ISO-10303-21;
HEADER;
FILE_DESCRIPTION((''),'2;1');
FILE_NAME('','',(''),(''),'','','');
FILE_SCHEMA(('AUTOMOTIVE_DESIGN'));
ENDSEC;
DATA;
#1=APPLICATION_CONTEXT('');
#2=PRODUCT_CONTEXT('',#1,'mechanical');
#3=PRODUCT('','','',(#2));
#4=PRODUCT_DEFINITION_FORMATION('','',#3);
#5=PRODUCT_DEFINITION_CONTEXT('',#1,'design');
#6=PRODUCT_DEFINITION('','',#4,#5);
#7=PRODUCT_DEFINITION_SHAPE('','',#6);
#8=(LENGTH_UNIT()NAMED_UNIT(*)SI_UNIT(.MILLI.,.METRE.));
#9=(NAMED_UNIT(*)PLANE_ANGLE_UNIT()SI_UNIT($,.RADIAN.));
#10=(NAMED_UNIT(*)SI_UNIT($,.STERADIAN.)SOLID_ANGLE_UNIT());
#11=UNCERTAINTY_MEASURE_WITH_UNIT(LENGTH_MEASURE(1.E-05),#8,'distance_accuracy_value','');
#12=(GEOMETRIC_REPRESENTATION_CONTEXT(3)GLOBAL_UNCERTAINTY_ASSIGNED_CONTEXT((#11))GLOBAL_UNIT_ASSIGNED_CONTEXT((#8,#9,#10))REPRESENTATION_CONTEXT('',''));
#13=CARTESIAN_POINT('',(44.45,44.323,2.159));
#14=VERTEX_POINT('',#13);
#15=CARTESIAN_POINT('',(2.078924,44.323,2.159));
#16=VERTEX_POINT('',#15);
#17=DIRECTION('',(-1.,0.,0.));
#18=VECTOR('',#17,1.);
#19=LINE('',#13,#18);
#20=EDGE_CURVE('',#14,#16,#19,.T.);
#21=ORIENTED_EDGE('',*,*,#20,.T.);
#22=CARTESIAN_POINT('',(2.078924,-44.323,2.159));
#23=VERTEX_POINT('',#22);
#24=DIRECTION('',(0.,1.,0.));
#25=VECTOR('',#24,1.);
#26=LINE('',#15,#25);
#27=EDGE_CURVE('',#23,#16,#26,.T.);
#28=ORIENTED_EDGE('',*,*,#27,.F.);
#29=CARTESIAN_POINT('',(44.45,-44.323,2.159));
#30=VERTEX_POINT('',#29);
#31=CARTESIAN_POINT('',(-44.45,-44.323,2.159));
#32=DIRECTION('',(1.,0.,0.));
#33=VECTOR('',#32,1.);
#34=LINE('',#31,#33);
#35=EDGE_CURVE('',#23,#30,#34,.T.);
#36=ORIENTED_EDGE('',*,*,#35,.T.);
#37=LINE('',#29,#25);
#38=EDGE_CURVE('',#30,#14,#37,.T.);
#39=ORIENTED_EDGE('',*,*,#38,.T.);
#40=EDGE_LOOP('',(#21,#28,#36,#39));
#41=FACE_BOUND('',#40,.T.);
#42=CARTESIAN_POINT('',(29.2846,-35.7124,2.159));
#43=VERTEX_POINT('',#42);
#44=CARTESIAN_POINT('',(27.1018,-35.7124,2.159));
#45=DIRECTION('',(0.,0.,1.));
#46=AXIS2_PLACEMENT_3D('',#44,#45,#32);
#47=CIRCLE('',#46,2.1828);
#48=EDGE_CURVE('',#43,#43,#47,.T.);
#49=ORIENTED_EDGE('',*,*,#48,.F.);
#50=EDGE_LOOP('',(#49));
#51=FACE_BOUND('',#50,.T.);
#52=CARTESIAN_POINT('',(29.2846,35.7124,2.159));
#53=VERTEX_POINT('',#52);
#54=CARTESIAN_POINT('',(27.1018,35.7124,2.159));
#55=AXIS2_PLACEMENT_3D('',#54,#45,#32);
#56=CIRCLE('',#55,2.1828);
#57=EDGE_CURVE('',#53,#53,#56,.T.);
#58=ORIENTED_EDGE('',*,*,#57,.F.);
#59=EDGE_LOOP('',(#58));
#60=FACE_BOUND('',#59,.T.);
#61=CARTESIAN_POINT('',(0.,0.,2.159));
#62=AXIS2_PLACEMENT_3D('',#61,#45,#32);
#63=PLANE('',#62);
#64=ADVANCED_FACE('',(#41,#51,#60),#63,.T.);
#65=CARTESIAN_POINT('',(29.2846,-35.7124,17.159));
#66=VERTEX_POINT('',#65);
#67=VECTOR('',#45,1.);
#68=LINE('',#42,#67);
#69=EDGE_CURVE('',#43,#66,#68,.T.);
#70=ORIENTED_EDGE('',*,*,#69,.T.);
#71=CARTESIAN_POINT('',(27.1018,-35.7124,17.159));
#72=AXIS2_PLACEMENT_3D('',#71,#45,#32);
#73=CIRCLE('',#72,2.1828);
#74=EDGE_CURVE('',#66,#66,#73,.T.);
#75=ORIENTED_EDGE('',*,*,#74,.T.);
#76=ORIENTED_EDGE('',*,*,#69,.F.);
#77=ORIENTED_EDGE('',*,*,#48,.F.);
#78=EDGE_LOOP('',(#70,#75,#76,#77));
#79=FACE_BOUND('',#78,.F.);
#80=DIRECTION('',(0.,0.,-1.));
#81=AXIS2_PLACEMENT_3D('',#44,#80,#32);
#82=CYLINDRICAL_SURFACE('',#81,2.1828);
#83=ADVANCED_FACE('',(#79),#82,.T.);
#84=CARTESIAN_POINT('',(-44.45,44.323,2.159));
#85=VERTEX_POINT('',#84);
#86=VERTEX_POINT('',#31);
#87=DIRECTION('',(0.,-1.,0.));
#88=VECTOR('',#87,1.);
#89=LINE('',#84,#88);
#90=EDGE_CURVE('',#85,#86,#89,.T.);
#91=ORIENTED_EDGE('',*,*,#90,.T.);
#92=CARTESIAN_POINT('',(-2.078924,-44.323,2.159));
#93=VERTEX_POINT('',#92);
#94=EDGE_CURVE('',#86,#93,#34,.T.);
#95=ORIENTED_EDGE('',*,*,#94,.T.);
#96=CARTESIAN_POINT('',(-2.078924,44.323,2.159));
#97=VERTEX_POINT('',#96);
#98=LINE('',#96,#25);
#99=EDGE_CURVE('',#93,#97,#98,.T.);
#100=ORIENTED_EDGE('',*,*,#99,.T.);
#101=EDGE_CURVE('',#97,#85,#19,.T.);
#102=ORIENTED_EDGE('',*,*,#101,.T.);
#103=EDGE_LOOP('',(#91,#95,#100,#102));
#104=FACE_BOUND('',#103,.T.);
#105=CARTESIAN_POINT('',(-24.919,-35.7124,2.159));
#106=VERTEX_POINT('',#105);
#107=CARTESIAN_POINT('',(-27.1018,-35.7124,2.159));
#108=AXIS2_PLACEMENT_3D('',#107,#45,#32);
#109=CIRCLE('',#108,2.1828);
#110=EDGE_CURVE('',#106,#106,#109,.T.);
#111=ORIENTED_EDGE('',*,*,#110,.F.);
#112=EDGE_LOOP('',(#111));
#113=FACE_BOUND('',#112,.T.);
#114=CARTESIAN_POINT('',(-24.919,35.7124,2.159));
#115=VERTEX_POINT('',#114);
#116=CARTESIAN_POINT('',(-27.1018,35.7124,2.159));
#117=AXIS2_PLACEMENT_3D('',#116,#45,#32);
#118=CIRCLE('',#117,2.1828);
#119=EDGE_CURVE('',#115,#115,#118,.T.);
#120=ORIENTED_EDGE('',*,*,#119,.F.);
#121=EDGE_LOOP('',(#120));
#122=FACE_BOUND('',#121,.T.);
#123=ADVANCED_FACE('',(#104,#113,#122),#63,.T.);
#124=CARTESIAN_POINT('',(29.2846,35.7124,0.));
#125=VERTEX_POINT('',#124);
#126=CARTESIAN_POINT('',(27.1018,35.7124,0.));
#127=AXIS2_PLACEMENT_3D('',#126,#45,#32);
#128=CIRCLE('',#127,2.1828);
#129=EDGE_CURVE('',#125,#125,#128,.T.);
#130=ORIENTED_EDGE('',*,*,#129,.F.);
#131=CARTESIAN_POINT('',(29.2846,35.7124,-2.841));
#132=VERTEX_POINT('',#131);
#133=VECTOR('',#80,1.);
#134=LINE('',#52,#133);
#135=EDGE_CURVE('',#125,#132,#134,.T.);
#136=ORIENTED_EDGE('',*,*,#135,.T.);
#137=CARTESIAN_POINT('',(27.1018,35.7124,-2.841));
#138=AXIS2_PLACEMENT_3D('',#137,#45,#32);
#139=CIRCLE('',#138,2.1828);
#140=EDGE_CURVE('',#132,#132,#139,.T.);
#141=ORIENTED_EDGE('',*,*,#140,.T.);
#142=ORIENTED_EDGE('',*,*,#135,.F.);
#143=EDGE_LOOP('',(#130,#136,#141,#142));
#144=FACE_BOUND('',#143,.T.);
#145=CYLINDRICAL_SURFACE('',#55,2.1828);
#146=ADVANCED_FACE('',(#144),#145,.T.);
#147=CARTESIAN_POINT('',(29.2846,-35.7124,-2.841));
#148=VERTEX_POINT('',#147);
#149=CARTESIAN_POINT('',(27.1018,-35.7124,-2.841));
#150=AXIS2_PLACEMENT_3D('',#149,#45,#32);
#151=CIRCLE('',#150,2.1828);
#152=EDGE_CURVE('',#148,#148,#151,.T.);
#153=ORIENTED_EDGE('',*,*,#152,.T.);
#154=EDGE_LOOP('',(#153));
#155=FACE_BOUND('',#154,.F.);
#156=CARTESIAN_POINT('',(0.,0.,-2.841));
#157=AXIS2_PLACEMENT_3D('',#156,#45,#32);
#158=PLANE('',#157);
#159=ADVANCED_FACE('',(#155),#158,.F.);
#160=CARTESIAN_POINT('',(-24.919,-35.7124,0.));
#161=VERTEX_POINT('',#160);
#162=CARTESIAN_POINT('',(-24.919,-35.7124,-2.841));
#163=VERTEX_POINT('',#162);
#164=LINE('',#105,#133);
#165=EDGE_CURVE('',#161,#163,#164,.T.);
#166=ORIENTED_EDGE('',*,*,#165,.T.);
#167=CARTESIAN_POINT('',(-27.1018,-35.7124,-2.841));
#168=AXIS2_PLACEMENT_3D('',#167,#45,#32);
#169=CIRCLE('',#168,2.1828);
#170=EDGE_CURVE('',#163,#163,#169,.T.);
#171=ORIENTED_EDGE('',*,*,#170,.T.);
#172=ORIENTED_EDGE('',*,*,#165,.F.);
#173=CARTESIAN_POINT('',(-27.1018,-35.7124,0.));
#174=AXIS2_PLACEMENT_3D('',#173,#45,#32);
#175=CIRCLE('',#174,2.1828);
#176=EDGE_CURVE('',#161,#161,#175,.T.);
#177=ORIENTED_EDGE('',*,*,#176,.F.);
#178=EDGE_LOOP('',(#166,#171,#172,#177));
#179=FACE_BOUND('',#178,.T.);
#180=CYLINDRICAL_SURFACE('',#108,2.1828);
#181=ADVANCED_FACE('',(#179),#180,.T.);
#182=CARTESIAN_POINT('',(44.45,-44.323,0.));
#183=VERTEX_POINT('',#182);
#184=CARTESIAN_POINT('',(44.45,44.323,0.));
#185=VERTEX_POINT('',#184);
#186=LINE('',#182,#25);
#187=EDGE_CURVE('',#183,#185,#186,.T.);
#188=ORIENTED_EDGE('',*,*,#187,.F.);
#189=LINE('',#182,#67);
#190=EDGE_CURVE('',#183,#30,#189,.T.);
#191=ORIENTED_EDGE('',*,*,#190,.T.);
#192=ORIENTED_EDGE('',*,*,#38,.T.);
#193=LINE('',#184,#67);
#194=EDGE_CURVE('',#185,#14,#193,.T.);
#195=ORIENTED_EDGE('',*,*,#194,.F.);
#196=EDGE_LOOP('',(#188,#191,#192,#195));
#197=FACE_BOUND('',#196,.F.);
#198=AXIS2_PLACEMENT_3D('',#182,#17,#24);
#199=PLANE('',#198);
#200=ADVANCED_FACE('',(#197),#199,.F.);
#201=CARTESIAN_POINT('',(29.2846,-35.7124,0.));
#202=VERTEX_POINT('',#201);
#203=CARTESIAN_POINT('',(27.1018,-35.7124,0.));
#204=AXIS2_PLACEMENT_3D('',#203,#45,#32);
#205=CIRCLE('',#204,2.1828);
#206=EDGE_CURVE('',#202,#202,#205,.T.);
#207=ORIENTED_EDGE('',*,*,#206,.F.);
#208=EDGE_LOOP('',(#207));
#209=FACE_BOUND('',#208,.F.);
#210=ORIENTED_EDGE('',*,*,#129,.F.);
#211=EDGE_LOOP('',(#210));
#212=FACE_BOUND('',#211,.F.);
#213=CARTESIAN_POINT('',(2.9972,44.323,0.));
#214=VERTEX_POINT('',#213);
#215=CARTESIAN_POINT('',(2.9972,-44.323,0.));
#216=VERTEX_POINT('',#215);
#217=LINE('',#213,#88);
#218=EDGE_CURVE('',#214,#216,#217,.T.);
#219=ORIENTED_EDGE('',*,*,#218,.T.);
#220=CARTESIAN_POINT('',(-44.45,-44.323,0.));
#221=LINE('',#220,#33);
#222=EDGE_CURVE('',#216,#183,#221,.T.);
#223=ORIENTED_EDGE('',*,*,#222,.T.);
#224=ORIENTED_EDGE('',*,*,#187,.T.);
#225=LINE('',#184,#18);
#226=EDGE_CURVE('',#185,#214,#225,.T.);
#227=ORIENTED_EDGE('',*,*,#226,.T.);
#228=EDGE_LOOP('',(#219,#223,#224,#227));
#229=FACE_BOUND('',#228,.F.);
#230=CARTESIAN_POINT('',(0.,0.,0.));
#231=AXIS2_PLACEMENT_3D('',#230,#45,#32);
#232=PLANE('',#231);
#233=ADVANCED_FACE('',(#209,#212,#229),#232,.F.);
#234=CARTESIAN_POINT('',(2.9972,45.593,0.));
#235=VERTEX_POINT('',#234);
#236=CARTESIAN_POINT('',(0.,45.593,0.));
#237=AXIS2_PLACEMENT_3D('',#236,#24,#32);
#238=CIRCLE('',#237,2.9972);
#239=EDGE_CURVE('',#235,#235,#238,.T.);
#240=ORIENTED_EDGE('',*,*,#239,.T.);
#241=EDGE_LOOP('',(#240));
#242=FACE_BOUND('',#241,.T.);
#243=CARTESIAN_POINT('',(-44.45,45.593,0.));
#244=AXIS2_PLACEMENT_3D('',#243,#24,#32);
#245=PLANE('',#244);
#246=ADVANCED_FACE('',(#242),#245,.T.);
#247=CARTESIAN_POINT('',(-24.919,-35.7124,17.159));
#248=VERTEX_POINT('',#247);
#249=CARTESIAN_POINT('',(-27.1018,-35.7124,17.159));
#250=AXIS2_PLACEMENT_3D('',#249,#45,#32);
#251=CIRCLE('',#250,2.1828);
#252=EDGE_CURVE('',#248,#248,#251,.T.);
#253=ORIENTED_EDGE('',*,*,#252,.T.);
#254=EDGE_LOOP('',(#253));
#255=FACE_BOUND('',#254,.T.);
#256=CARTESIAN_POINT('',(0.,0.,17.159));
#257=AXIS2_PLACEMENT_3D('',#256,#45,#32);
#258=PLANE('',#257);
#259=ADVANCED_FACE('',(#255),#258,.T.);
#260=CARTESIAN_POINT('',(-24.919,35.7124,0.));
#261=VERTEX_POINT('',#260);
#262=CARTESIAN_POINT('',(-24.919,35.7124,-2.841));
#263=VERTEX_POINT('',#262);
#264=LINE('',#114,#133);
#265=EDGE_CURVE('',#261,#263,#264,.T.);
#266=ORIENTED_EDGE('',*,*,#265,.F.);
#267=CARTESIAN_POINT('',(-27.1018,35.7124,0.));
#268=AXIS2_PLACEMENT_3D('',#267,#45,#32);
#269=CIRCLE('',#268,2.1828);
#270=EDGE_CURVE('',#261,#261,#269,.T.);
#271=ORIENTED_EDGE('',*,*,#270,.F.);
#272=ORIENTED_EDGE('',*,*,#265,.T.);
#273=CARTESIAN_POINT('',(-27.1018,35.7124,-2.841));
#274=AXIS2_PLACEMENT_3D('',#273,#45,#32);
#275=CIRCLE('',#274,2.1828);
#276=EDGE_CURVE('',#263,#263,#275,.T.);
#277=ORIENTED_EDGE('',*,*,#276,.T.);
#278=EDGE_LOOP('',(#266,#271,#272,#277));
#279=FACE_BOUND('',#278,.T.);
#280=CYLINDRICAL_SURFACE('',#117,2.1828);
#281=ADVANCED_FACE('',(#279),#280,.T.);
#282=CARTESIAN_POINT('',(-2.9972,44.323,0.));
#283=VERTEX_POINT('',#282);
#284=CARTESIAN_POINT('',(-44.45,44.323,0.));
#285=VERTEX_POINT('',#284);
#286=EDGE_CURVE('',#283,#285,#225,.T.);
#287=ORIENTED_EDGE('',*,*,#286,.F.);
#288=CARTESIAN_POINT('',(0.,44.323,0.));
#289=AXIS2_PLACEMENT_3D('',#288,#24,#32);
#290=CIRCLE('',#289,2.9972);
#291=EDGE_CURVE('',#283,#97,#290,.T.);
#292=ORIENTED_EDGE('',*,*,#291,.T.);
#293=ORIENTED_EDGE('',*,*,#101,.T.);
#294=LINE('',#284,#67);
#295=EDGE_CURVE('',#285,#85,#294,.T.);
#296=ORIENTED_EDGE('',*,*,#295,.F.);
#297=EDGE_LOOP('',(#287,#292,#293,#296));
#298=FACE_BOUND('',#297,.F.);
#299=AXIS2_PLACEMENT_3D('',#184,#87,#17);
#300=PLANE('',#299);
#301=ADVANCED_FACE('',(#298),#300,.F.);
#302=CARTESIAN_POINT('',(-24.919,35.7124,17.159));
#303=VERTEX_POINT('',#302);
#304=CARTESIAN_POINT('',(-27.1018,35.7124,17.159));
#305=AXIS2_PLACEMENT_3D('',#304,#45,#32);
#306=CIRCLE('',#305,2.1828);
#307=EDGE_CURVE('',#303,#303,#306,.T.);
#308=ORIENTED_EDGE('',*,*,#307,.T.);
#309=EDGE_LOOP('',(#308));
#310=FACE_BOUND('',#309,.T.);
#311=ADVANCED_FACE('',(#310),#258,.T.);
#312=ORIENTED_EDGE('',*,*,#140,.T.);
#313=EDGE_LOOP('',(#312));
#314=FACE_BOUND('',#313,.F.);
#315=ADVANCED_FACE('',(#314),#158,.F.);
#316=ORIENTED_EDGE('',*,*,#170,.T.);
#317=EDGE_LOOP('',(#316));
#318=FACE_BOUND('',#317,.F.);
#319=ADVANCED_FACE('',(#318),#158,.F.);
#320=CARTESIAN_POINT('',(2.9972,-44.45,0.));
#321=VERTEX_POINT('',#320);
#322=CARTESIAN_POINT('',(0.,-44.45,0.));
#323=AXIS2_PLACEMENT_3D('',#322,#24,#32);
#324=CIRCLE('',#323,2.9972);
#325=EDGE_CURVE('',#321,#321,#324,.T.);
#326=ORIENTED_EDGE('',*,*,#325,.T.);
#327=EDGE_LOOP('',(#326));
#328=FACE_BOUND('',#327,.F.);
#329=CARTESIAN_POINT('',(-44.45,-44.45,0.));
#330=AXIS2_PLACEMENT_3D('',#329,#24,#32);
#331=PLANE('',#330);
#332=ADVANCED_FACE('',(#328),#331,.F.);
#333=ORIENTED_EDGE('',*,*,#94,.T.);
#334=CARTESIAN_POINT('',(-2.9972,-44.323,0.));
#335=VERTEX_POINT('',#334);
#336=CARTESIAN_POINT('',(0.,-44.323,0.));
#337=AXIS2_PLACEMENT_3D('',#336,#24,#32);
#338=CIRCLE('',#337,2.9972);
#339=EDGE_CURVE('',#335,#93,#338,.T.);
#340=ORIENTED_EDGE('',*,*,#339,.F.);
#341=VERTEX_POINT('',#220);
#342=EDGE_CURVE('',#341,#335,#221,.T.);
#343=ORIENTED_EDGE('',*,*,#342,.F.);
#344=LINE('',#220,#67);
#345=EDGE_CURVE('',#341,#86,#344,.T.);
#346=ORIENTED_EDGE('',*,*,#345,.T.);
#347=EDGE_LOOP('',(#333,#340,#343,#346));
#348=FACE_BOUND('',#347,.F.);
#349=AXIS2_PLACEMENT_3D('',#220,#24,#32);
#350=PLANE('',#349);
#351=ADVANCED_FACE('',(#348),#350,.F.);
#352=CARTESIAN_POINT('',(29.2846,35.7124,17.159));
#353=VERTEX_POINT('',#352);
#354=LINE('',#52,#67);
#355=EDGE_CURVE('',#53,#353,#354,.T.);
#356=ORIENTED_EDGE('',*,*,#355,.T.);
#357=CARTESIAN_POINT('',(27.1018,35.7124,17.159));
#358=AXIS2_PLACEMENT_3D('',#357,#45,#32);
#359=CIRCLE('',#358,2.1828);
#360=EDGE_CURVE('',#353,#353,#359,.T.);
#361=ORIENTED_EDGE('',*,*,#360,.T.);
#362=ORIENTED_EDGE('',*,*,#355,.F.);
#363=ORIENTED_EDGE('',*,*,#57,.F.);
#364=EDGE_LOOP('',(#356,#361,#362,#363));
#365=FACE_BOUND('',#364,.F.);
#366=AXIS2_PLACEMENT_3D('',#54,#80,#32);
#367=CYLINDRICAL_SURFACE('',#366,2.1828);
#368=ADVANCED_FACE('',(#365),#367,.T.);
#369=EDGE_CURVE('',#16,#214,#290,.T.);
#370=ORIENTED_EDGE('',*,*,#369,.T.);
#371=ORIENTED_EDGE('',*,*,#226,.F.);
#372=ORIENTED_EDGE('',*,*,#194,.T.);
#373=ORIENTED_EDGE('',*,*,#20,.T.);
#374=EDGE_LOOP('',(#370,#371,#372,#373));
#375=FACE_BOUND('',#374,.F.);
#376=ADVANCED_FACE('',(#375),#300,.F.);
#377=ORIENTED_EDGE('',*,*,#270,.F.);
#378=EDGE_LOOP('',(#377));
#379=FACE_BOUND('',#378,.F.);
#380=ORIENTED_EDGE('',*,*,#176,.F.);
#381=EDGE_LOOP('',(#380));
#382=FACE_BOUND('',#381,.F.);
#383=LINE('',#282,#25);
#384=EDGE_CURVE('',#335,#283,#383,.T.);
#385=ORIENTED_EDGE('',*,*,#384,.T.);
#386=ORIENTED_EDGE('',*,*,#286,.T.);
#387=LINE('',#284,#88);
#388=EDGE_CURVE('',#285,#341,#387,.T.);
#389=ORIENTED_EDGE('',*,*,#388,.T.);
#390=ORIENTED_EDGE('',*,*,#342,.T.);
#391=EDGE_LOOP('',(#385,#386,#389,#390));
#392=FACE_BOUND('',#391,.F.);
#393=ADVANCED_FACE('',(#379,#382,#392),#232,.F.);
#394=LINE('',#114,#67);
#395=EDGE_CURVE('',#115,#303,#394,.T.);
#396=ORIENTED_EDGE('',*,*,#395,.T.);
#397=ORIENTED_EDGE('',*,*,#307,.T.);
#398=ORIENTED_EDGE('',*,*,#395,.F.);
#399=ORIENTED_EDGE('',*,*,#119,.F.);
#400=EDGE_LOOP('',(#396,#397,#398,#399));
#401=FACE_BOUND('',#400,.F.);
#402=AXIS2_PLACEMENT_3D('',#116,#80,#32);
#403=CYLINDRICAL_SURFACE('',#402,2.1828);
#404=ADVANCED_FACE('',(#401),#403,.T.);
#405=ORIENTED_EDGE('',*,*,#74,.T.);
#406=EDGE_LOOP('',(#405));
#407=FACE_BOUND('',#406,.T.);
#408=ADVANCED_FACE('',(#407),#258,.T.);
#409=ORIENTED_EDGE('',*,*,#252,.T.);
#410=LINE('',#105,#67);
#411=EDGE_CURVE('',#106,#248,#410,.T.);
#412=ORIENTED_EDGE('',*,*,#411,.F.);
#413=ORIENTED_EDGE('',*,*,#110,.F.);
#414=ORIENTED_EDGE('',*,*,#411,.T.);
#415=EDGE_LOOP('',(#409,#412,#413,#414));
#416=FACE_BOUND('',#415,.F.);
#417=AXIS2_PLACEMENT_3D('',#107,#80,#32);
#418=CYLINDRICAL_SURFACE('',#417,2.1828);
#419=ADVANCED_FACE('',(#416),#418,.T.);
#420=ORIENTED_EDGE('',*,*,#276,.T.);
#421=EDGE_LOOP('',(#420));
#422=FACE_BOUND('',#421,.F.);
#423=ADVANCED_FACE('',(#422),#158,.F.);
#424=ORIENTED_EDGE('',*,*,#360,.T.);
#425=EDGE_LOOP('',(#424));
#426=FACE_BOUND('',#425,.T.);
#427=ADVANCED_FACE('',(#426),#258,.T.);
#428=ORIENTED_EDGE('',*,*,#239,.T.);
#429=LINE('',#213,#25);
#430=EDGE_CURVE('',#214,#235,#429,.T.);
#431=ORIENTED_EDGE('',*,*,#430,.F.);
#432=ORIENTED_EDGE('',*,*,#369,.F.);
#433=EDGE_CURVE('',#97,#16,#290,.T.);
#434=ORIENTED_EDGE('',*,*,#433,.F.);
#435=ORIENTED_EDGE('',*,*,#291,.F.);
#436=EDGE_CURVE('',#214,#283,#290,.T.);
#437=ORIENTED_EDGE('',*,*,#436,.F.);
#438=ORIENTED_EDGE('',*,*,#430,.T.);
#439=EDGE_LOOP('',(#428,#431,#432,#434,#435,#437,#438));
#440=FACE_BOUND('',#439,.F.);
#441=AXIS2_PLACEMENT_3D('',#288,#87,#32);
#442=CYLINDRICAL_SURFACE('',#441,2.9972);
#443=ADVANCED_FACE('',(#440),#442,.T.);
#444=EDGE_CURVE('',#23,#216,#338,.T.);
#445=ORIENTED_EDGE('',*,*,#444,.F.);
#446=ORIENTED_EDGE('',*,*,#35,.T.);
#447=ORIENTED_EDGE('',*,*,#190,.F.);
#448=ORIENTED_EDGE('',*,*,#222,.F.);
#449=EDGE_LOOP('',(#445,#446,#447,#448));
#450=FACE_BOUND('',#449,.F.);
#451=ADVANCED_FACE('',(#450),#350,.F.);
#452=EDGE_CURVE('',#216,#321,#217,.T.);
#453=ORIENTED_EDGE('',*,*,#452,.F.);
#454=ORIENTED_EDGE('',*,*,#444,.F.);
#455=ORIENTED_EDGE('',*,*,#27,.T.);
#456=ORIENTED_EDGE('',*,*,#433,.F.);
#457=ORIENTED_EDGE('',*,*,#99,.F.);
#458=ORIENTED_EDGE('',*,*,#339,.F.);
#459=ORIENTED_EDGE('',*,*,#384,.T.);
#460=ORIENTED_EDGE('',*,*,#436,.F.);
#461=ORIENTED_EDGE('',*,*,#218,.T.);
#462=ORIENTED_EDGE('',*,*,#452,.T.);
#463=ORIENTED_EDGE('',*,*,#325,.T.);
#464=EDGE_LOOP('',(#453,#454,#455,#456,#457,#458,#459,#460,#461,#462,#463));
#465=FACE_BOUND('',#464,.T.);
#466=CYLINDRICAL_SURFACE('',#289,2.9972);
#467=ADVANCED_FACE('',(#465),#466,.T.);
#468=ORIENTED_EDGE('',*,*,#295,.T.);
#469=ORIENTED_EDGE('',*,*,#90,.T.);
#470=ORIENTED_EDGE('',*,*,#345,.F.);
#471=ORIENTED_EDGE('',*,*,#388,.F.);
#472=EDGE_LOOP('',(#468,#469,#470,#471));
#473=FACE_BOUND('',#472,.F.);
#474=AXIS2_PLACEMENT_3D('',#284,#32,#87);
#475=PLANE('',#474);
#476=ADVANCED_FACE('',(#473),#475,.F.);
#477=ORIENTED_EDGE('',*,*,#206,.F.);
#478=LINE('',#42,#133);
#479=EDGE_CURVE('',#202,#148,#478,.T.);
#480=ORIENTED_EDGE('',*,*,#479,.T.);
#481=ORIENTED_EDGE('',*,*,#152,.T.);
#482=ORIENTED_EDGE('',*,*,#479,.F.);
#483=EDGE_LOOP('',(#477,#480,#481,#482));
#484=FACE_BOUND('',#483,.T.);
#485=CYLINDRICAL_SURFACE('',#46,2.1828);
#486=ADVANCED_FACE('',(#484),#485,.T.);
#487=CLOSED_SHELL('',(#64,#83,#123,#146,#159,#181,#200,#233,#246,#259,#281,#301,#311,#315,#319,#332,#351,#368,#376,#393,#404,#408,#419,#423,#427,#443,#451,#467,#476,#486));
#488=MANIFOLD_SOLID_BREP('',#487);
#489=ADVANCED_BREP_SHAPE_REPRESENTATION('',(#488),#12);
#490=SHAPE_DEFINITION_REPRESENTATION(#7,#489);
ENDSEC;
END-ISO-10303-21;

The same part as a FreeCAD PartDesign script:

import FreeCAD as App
import Part
import Sketcher

V = App.Vector
Q = App.Units.Quantity


def add_polygon(sketch, points):
    """Adds a closed chain of lines whose ends are joined by coincident constraints."""
    first, n = sketch.GeometryCount, len(points)
    for a, b in zip(points, points[1:] + points[:1]):
        sketch.addGeometry(Part.LineSegment(App.Vector(*a, 0), App.Vector(*b, 0)), False)
    for i in range(n):
        sketch.addConstraint(Sketcher.Constraint("Coincident", first + i, 2, first + (i + 1) % n, 1))

doc = App.newDocument("Part")
body = doc.addObject("PartDesign::Body", "Body")

# Sketch on XY plane
sketch1 = body.newObject("Sketcher::SketchObject", "Sketch")
sketch1.AttachmentSupport = (doc.getObject("XY_Plane"), [""])
sketch1.MapMode = "FlatFace"
add_polygon(sketch1, [(-44.45, 44.323), (-44.45, -44.323), (44.45, -44.323), (44.45, 44.323)])  # lines 0-3
sketch1.addConstraint([
    Sketcher.Constraint("Vertical", 0),
    Sketcher.Constraint("Horizontal", 1),
    Sketcher.Constraint("Vertical", 2),
    Sketcher.Constraint("Horizontal", 3),
    Sketcher.Constraint("Symmetric", 0, 2, 2, 2, -1, 1),
    Sketcher.Constraint("DistanceX", 1, 1, 1, 2, Q("3.5 in")),
    Sketcher.Constraint("DistanceY", 0, 2, 0, 1, Q("3.49 in")),
])
pad1 = body.newObject("PartDesign::Pad", "Pad")
pad1.Profile = sketch1
pad1.Length = Q("0.085 in")

# Sketch on XZ plane
sketch2 = body.newObject("Sketcher::SketchObject", "Sketch001")
sketch2.AttachmentSupport = (doc.getObject("XZ_Plane"), [""])
sketch2.MapMode = "FlatFace"
sketch2.AttachmentOffset = App.Placement(V(0, 0, -1.745 * 25.4), App.Rotation())
sketch2.addGeometry(Part.Circle(V(0, 0, 0), V(0, 0, 1), 2.9972), False)
sketch2.addConstraint([
    Sketcher.Constraint("Coincident", 0, 3, -1, 1),
    Sketcher.Constraint("Diameter", 0, Q("0.236 in")),
])
pad2 = body.newObject("PartDesign::Pad", "Pad001")
pad2.Profile = sketch2
pad2.Type = "TwoLengths"
pad2.Length = Q("0.05 in")
pad2.Length2 = Q("3.495 in")
pad2.Reversed = True

# Sketch on XY plane
sketch3 = body.newObject("Sketcher::SketchObject", "Sketch002")
sketch3.AttachmentSupport = (doc.getObject("XY_Plane"), [""])
sketch3.MapMode = "FlatFace"
sketch3.AttachmentOffset = App.Placement(V(0, 0, 0.085 * 25.4), App.Rotation())
sketch3.addGeometry([
    Part.Circle(V(-27.1018, 35.7124, 0), V(0, 0, 1), 2.1828),
    Part.Circle(V(-27.1018, -35.7124, 0), V(0, 0, 1), 2.1828),
    Part.Circle(V(27.1018, 35.7124, 0), V(0, 0, 1), 2.1828),
    Part.Circle(V(27.1018, -35.7124, 0), V(0, 0, 1), 2.1828),
], False)
sketch3.addConstraint([
    Sketcher.Constraint("Equal", 0, 1),
    Sketcher.Constraint("Equal", 1, 2),
    Sketcher.Constraint("Equal", 2, 3),
    Sketcher.Constraint("Symmetric", 1, 3, 2, 3, -1, 1),
    Sketcher.Constraint("Symmetric", 0, 3, 3, 3, -1, 1),
    Sketcher.Constraint("Symmetric", 0, 3, 2, 3, -2),
    Sketcher.Constraint("Diameter", 0, Q("0.171874 in")),
    Sketcher.Constraint("DistanceX", 0, 3, -1, 1, Q("1.067 in")),
    Sketcher.Constraint("DistanceY", -1, 1, 0, 3, Q("1.406 in")),
])
pad3 = body.newObject("PartDesign::Pad", "Pad002")
pad3.Profile = sketch3
pad3.Type = "TwoLengths"
pad3.Length = 15
pad3.Length2 = 5

doc.recompute()
